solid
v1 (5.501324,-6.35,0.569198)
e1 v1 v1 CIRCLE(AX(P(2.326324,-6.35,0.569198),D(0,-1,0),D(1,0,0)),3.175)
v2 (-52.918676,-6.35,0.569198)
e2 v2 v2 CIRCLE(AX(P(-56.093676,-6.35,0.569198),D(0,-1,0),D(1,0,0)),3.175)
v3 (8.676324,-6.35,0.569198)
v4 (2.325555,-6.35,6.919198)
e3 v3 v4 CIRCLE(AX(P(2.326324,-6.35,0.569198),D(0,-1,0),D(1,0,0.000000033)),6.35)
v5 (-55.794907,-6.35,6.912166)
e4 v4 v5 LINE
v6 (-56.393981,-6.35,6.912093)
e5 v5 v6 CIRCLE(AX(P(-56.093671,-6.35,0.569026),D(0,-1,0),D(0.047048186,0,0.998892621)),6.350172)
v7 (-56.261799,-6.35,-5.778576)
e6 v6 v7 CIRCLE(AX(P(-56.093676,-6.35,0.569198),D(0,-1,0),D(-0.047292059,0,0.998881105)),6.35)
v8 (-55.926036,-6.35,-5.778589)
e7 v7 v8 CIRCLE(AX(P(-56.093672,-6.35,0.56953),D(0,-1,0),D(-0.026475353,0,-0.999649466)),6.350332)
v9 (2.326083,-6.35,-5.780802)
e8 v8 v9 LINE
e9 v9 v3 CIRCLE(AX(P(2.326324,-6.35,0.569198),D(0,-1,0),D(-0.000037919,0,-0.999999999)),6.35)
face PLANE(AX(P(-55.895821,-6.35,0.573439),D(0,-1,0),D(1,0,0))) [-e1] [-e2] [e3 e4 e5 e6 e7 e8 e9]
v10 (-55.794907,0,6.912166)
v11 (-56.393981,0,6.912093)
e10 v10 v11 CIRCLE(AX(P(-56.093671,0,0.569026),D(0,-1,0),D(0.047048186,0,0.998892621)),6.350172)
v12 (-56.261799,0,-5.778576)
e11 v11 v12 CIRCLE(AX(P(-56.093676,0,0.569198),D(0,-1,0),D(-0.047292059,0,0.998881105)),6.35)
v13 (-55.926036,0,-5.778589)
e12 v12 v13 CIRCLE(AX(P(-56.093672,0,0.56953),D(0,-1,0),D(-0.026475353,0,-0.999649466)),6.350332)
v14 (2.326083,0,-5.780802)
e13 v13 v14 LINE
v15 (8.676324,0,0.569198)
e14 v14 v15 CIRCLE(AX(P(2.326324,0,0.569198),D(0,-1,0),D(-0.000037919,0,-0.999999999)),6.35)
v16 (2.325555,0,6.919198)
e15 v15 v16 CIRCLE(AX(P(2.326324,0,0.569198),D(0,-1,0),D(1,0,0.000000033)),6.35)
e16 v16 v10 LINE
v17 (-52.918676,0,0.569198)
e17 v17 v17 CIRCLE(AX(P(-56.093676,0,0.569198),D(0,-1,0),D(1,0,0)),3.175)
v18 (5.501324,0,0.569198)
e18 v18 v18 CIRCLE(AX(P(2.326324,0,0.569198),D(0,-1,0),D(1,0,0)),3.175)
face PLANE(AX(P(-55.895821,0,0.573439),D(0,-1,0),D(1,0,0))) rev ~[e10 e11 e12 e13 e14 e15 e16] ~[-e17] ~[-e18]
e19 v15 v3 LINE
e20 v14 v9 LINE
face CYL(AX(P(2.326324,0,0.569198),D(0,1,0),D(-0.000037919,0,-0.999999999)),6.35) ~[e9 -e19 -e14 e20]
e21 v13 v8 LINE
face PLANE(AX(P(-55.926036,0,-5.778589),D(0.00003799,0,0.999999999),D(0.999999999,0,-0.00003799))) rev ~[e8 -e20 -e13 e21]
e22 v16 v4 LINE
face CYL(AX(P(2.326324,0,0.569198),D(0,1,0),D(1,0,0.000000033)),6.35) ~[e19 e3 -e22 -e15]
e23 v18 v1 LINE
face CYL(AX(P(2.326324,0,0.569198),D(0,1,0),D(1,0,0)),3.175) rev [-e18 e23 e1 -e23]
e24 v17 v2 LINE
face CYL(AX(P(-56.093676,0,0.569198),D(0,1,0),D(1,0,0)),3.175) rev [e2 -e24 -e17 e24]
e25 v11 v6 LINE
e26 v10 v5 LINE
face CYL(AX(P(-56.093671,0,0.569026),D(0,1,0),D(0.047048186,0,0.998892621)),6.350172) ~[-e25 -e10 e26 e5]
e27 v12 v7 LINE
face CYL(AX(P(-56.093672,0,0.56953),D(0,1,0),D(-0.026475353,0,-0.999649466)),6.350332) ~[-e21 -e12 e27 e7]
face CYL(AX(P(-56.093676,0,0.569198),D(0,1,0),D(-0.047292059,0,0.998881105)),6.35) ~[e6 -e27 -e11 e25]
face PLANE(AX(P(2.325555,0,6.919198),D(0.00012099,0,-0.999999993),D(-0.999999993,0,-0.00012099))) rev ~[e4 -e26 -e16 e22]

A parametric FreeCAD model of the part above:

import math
import FreeCAD as App
import Part
import Sketcher
Q = App.Units.Quantity

doc = App.newDocument("Part")
body = doc.addObject("PartDesign::Body", "Body")

sketch1 = body.newObject("Sketcher::SketchObject", "Sketch")
sketch1.AttachmentSupport = (doc.getObject("XZ_Plane"), [""])
sketch1.MapMode = "FlatFace"
sketch1.addGeometry([
    Part.ArcOfCircle(Part.Circle(App.Vector(-56.093671, 0.569026, 0), App.Vector(0, 0, 1), 6.350172), math.radians(87.303342), math.radians(92.710621)),
    Part.ArcOfCircle(Part.Circle(App.Vector(-56.093676, 0.569198, 0), App.Vector(0, 0, 1), 6.35), math.radians(92.710646), math.radians(268.48286)),
    Part.ArcOfCircle(Part.Circle(App.Vector(-56.093672, 0.56953, 0), App.Vector(0, 0, 1), 6.350332), math.radians(-91.517103), math.radians(-88.487333)),
    Part.LineSegment(App.Vector(-55.926036, -5.778589, 0), App.Vector(2.326083, -5.780802, 0)),
    Part.ArcOfCircle(Part.Circle(App.Vector(2.326324, 0.569198, 0), App.Vector(0, 0, 1), 6.35), math.radians(-90.002173), math.radians(-0.000002)),
    Part.ArcOfCircle(Part.Circle(App.Vector(2.326324, 0.569198, 0), App.Vector(0, 0, 1), 6.35), math.radians(0.000002), math.radians(90.006936)),
    Part.LineSegment(App.Vector(2.325555, 6.919198, 0), App.Vector(-55.794907, 6.912166, 0)),
    Part.Circle(App.Vector(-56.093676, 0.569198, 0), App.Vector(0, 0, 1), 3.175),
    Part.Circle(App.Vector(2.326324, 0.569198, 0), App.Vector(0, 0, 1), 3.175),
], False)
sketch1.addConstraint([
    Sketcher.Constraint("Coincident", 0, 2, 1, 1),
    Sketcher.Constraint("Coincident", 1, 2, 2, 1),
    Sketcher.Constraint("Coincident", 2, 2, 3, 1),
    Sketcher.Constraint("Coincident", 3, 2, 4, 1),
    Sketcher.Constraint("Coincident", 4, 2, 5, 1),
    Sketcher.Constraint("Coincident", 5, 2, 6, 1),
    Sketcher.Constraint("Coincident", 6, 2, 0, 1),
    Sketcher.Constraint("Coincident", 5, 3, 4, 3),
    Sketcher.Constraint("Coincident", 7, 3, 1, 3),
    Sketcher.Constraint("Coincident", 8, 3, 4, 3),
    Sketcher.Constraint("Diameter", 7, Q("0.25 in")),
    Sketcher.Constraint("Diameter", 8, Q("0.25 in")),
    Sketcher.Constraint("Radius", 1, Q("0.25 in")),
    Sketcher.Constraint("Radius", 4, Q("0.25 in")),
    Sketcher.Constraint("DistanceX", 2, 3, 4, 3, Q("2.2999998 in")),
    Sketcher.Constraint("DistanceX", 1, 3, 4, 3, Q("2.3 in")),
    Sketcher.Constraint("DistanceX", 0, 3, 8, 3, Q("2.2999998 in")),
    Sketcher.Constraint("DistanceY", 3, 2, 4, 2, Q("0.25 in")),
    Sketcher.Constraint("Radius", 0, 6.350172),
    Sketcher.Constraint("Radius", 2, 6.350332),
    Sketcher.Constraint("DistanceX", 0, 3, 2, 2, Q("0.0065998 in")),
    Sketcher.Constraint("DistanceY", -1, 1, 4, 3, 0.569198),
    Sketcher.Constraint("DistanceX", 1, 2, -1, 1, 56.261799),
    Sketcher.Constraint("Distance", 3, 58.252119),
    Sketcher.Constraint("DistanceX", 0, 3, -1, 1, 56.093671),
    Sketcher.Constraint("DistanceY", -1, 1, 2, 3, 0.56953),
    Sketcher.Constraint("DistanceX", 0, 2, -1, 1, 56.393981),
    Sketcher.Constraint("DistanceX", 5, 2, 4, 3, 0.000769),
    Sketcher.Constraint("DistanceX", 7, 3, 6, 2, 0.298769),
])
pad1 = body.newObject("PartDesign::Pad", "Pad")
pad1.Profile = sketch1
pad1.Length = Q("0.25 in")

doc.recompute()
